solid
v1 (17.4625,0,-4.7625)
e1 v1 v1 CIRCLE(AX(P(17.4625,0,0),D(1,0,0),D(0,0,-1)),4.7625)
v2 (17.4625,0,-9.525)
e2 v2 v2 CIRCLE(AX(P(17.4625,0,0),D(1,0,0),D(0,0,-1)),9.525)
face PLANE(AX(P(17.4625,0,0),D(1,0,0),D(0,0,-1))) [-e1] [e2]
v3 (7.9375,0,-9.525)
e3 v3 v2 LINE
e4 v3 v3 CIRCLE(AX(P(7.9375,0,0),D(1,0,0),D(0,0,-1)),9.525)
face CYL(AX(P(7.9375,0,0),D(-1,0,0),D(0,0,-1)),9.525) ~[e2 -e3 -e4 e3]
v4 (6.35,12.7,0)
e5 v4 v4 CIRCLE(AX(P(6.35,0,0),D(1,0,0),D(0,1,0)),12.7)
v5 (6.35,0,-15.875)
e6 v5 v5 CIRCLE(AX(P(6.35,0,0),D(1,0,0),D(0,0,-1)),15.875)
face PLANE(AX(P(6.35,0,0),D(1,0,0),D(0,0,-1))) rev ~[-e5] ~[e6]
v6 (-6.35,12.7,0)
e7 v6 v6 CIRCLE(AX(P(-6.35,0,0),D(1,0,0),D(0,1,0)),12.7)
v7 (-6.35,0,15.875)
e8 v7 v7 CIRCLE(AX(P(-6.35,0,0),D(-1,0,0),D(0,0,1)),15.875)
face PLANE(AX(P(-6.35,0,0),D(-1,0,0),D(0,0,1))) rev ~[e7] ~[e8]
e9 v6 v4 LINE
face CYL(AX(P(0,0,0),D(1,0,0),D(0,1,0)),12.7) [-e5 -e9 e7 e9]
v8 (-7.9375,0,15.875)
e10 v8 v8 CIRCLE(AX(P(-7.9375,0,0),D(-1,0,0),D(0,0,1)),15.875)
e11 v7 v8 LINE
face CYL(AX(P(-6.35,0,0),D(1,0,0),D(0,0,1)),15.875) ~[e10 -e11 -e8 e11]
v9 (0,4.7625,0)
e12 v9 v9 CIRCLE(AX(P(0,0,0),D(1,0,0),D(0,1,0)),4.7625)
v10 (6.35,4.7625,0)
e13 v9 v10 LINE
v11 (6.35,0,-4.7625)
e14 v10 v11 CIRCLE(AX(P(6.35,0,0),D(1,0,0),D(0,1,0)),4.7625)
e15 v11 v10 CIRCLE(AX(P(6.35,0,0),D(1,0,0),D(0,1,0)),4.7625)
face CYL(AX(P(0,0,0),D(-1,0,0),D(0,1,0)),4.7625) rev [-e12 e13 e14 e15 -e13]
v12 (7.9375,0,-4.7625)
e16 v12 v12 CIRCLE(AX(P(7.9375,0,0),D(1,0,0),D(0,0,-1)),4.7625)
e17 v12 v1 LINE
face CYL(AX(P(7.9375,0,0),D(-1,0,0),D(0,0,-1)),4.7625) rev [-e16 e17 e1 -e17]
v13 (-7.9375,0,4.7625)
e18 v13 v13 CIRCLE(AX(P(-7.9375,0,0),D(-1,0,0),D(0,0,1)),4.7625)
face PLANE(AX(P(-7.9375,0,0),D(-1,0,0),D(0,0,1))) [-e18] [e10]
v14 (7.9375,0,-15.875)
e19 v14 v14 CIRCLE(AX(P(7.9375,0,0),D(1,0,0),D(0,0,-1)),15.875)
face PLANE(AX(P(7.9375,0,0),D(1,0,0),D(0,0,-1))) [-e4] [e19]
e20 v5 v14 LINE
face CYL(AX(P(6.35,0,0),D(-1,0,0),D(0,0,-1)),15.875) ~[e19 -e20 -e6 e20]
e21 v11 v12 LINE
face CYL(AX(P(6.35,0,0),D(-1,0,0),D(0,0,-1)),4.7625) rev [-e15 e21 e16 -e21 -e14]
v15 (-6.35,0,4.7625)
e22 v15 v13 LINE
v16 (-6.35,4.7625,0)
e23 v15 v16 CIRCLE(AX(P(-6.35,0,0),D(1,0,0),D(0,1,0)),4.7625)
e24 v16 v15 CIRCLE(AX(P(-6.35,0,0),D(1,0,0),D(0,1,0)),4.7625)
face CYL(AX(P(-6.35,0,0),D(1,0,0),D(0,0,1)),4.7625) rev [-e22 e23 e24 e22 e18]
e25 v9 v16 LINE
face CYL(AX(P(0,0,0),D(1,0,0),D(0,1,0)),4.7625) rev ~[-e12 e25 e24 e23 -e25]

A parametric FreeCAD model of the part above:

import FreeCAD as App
import Part
import Sketcher
Q = App.Units.Quantity

doc = App.newDocument("Part")
params = doc.addObject("Spreadsheet::Sheet", "Params")
for row, (alias, value) in enumerate([
    ("sketch1_diameter", "1 in"),
    ("sketch1_diameter2", "0.375 in"),
    ("pad1_length", "0.5 in"),
    ("sketch2_diameter", "1.25 in"),
    ("sketch2_diameter2", "0.375 in"),
    ("pad2_length", "0.0625 in"),
    ("sketch3_diameter", "1.25 in"),
    ("sketch3_diameter2", "0.375 in"),
    ("pad3_length", "0.0625 in"),
    ("sketch4_diameter", "0.375 in"),
    ("sketch4_diameter2", "0.75 in"),
    ("pad4_length", "0.375 in"),
], start=1):
    params.set(f"A{row}", alias)
    params.set(f"B{row}", "=" + value)
    params.setAlias(f"B{row}", alias)

body = doc.addObject("PartDesign::Body", "Body")

# Sketch on YZ plane
sketch1 = body.newObject("Sketcher::SketchObject", "Sketch")
sketch1.AttachmentSupport = (doc.getObject("YZ_Plane"), [""])
sketch1.MapMode = "FlatFace"
sketch1.addGeometry(Part.Circle(App.Vector(0, 0, 0), App.Vector(0, 0, 1), 12.7), False)
sketch1.addGeometry(Part.Circle(App.Vector(0, 0, 0), App.Vector(0, 0, 1), 4.7625), False)
sketch1.addConstraint(Sketcher.Constraint("Coincident", 0, 3, -1, 1))
sketch1.addConstraint(Sketcher.Constraint("Coincident", 1, 3, -1, 1))
sketch1.addConstraint(Sketcher.Constraint("Diameter", 0, Q("1 in")))
sketch1.addConstraint(Sketcher.Constraint("Diameter", 1, Q("0.375 in")))
sketch1.setExpression("Constraints[2]", "Params.sketch1_diameter")
sketch1.setExpression("Constraints[3]", "Params.sketch1_diameter2")
pad1 = body.newObject("PartDesign::Pad", "Pad")
pad1.Profile = sketch1
pad1.setExpression("Length", "Params.pad1_length")
pad1.Midplane = True

# Sketch on YZ plane
sketch2 = body.newObject("Sketcher::SketchObject", "Sketch001")
sketch2.AttachmentSupport = (doc.getObject("YZ_Plane"), [""])
sketch2.MapMode = "FlatFace"
sketch2.AttachmentOffset = App.Placement(App.Vector(0, 0, 0.25 * 25.4), App.Rotation())
sketch2.addGeometry(Part.Circle(App.Vector(0, 0, 0), App.Vector(0, 0, 1), 15.875), False)
sketch2.addGeometry(Part.Circle(App.Vector(0, 0, 0), App.Vector(0, 0, 1), 4.7625), False)
sketch2.addConstraint(Sketcher.Constraint("Coincident", 0, 3, -1, 1))
sketch2.addConstraint(Sketcher.Constraint("Coincident", 1, 3, -1, 1))
sketch2.addConstraint(Sketcher.Constraint("Diameter", 0, Q("1.25 in")))
sketch2.addConstraint(Sketcher.Constraint("Diameter", 1, Q("0.375 in")))
sketch2.setExpression("Constraints[2]", "Params.sketch2_diameter")
sketch2.setExpression("Constraints[3]", "Params.sketch2_diameter2")
pad2 = body.newObject("PartDesign::Pad", "Pad001")
pad2.Profile = sketch2
pad2.setExpression("Length", "Params.pad2_length")

# Sketch on YZ plane
sketch3 = body.newObject("Sketcher::SketchObject", "Sketch002")
sketch3.AttachmentSupport = (doc.getObject("YZ_Plane"), [""])
sketch3.MapMode = "FlatFace"
sketch3.AttachmentOffset = App.Placement(App.Vector(0, 0, -0.25 * 25.4), App.Rotation())
sketch3.addGeometry(Part.Circle(App.Vector(0, 0, 0), App.Vector(0, 0, 1), 15.875), False)
sketch3.addGeometry(Part.Circle(App.Vector(0, 0, 0), App.Vector(0, 0, 1), 4.7625), False)
sketch3.addConstraint(Sketcher.Constraint("Coincident", 0, 3, -1, 1))
sketch3.addConstraint(Sketcher.Constraint("Coincident", 1, 3, -1, 1))
sketch3.addConstraint(Sketcher.Constraint("Diameter", 0, Q("1.25 in")))
sketch3.addConstraint(Sketcher.Constraint("Diameter", 1, Q("0.375 in")))
sketch3.setExpression("Constraints[2]", "Params.sketch3_diameter")
sketch3.setExpression("Constraints[3]", "Params.sketch3_diameter2")
pad3 = body.newObject("PartDesign::Pad", "Pad002")
pad3.Profile = sketch3
pad3.setExpression("Length", "Params.pad3_length")
pad3.Reversed = True

# Sketch on YZ plane
sketch4 = body.newObject("Sketcher::SketchObject", "Sketch003")
sketch4.AttachmentSupport = (doc.getObject("YZ_Plane"), [""])
sketch4.MapMode = "FlatFace"
sketch4.AttachmentOffset = App.Placement(App.Vector(0, 0, 0.3125 * 25.4), App.Rotation())
sketch4.addGeometry(Part.Circle(App.Vector(0, 0, 0), App.Vector(0, 0, 1), 9.525), False)
sketch4.addGeometry(Part.Circle(App.Vector(0, 0, 0), App.Vector(0, 0, 1), 4.7625), False)
sketch4.addConstraint(Sketcher.Constraint("Coincident", 0, 3, -1, 1))
sketch4.addConstraint(Sketcher.Constraint("Coincident", 1, 3, -1, 1))
sketch4.addConstraint(Sketcher.Constraint("Diameter", 1, Q("0.375 in")))
sketch4.addConstraint(Sketcher.Constraint("Diameter", 0, Q("0.75 in")))
sketch4.setExpression("Constraints[2]", "Params.sketch4_diameter")
sketch4.setExpression("Constraints[3]", "Params.sketch4_diameter2")
pad4 = body.newObject("PartDesign::Pad", "Pad003")
pad4.Profile = sketch4
pad4.setExpression("Length", "Params.pad4_length")

doc.recompute()
